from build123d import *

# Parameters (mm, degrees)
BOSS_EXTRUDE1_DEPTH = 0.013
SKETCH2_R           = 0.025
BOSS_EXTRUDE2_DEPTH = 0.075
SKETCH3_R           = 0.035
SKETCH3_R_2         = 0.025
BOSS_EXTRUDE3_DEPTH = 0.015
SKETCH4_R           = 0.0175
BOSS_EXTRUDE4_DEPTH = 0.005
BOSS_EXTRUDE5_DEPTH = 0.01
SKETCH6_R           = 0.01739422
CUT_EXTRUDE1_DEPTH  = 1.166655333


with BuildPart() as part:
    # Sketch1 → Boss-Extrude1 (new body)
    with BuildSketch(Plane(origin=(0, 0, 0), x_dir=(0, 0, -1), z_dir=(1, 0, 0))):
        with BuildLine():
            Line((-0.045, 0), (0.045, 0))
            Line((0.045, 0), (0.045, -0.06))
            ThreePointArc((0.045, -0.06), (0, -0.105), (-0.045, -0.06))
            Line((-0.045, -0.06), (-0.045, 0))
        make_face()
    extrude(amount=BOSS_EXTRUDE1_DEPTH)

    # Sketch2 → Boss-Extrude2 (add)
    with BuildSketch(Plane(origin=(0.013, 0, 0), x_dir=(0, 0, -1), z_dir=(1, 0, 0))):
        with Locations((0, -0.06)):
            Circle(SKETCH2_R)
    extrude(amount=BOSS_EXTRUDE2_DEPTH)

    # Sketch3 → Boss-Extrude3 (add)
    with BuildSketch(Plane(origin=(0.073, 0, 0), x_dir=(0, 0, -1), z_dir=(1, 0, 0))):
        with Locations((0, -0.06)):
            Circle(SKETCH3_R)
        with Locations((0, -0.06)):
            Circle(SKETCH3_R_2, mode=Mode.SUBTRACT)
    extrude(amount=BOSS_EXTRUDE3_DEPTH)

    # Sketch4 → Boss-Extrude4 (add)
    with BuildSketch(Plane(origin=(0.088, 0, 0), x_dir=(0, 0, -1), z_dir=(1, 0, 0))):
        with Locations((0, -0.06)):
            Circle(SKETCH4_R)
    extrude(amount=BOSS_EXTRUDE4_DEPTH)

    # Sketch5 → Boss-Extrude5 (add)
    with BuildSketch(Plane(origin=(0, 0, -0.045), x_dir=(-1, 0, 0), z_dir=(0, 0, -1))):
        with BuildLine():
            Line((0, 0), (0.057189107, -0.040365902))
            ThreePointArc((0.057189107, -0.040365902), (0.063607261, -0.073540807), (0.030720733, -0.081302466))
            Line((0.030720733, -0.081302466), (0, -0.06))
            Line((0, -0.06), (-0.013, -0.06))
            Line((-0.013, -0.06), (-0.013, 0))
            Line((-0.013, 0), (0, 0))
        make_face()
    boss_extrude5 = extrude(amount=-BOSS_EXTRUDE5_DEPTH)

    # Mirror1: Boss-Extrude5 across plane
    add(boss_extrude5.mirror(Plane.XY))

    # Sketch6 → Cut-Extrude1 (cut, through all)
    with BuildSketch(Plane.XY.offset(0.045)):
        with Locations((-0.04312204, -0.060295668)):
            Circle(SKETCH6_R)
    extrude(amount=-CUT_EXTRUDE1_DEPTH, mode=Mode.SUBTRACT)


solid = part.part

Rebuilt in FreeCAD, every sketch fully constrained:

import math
import FreeCAD as App
import Part
import Sketcher
Q = App.Units.Quantity

doc = App.newDocument("Part")
body = doc.addObject("PartDesign::Body", "Body")

sketch1 = doc.addObject("Sketcher::SketchObject", "Sketch")
body.addObject(sketch1)
sketch1.AttachmentSupport = (doc.YZ_Plane, [""])
sketch1.MapMode = "FlatFace"
sketch1.addGeometry([
    Part.LineSegment(App.Vector(0, -0.045, 0), App.Vector(0, 0.045, 0)),
    Part.LineSegment(App.Vector(0, 0.045, 0), App.Vector(-0.06, 0.045, 0)),
    Part.ArcOfCircle(Part.Circle(App.Vector(-0.06, 0, 0), App.Vector(0, 0, 1), 0.045), math.radians(90), math.radians(270)),
    Part.LineSegment(App.Vector(-0.06, -0.045, 0), App.Vector(0, -0.045, 0)),
], False)
sketch1.addConstraint([
    Sketcher.Constraint("Coincident", 0, 2, 1, 1),
    Sketcher.Constraint("Tangent", 1, 2, 2, 1),
    Sketcher.Constraint("Tangent", 2, 2, 3, 1),
    Sketcher.Constraint("Coincident", 3, 2, 0, 1),
    Sketcher.Constraint("Vertical", 0),
    Sketcher.Constraint("Horizontal", 1),
    Sketcher.Constraint("Horizontal", 3),
    Sketcher.Constraint("Symmetric", 0, 2, 3, 2, -1, 1),
    Sketcher.Constraint("Radius", 2, Q("0.045 mm")),
    Sketcher.Constraint("DistanceX", 1, 2, 1, 1, Q("0.06 mm")),
])
pad1 = doc.addObject("PartDesign::Pad", "Pad")
body.addObject(pad1)
pad1.Profile = sketch1
pad1.Length = 0.013

sketch2 = doc.addObject("Sketcher::SketchObject", "Sketch001")
body.addObject(sketch2)
sketch2.AttachmentSupport = (doc.YZ_Plane, [""])
sketch2.MapMode = "FlatFace"
sketch2.AttachmentOffset = App.Placement(App.Vector(0, 0, 0.013), App.Rotation())
sketch2.addGeometry(Part.Circle(App.Vector(-0.06, 0, 0), App.Vector(0, 0, 1), 0.025), False)
sketch2.addConstraint([
    Sketcher.Constraint("PointOnObject", 0, 3, -1),
    Sketcher.Constraint("Diameter", 0, Q("0.05 mm")),
    Sketcher.Constraint("DistanceX", 0, 3, -1, 1, Q("0.06 mm")),
])
pad2 = doc.addObject("PartDesign::Pad", "Pad001")
body.addObject(pad2)
pad2.Profile = sketch2
pad2.Length = 0.075

sketch3 = doc.addObject("Sketcher::SketchObject", "Sketch002")
body.addObject(sketch3)
sketch3.AttachmentSupport = (doc.YZ_Plane, [""])
sketch3.MapMode = "FlatFace"
sketch3.AttachmentOffset = App.Placement(App.Vector(0, 0, 0.073), App.Rotation())
sketch3.addGeometry([
    Part.Circle(App.Vector(-0.06, 0, 0), App.Vector(0, 0, 1), 0.035),
    Part.Circle(App.Vector(-0.06, 0, 0), App.Vector(0, 0, 1), 0.025),
], False)
sketch3.addConstraint([
    Sketcher.Constraint("Coincident", 1, 3, 0, 3),
    Sketcher.Constraint("PointOnObject", 0, 3, -1),
    Sketcher.Constraint("Diameter", 0, Q("0.07 mm")),
    Sketcher.Constraint("Diameter", 1, Q("0.05 mm")),
    Sketcher.Constraint("DistanceX", 0, 3, -1, 1, Q("0.06 mm")),
])
pad3 = doc.addObject("PartDesign::Pad", "Pad002")
body.addObject(pad3)
pad3.Profile = sketch3
pad3.Length = 0.015

sketch4 = doc.addObject("Sketcher::SketchObject", "Sketch003")
body.addObject(sketch4)
sketch4.AttachmentSupport = (doc.YZ_Plane, [""])
sketch4.MapMode = "FlatFace"
sketch4.AttachmentOffset = App.Placement(App.Vector(0, 0, 0.088), App.Rotation())
sketch4.addGeometry(Part.Circle(App.Vector(-0.06, 0, 0), App.Vector(0, 0, 1), 0.0175), False)
sketch4.addConstraint([
    Sketcher.Constraint("PointOnObject", 0, 3, -1),
    Sketcher.Constraint("Diameter", 0, Q("0.035 mm")),
    Sketcher.Constraint("DistanceX", 0, 3, -1, 1, Q("0.06 mm")),
])
pad4 = doc.addObject("PartDesign::Pad", "Pad003")
body.addObject(pad4)
pad4.Profile = sketch4
pad4.Length = 0.005

sketch5 = doc.addObject("Sketcher::SketchObject", "Sketch004")
body.addObject(sketch5)
sketch5.AttachmentSupport = (doc.XY_Plane, [""])
sketch5.MapMode = "FlatFace"
sketch5.AttachmentOffset = App.Placement(App.Vector(0, 0, -0.045), App.Rotation())
sketch5.addGeometry([
    Part.LineSegment(App.Vector(-0.057189, -0.040366, 0), App.Vector(0, 0, 0)),
    Part.LineSegment(App.Vector(0, 0, 0), App.Vector(0.013, 0, 0)),
    Part.LineSegment(App.Vector(0.013, 0, 0), App.Vector(0.013, -0.06, 0)),
    Part.LineSegment(App.Vector(0.013, -0.06, 0), App.Vector(0, -0.06, 0)),
    Part.LineSegment(App.Vector(0, -0.06, 0), App.Vector(-0.030721, -0.081302, 0)),
    Part.ArcOfCircle(Part.Circle(App.Vector(-0.043122, -0.060296, 0), App.Vector(0, 0, 1), 0.024394), math.radians(125.215667), math.radians(300.555365)),
], False)
sketch5.addConstraint([
    Sketcher.Constraint("Coincident", 0, 2, 1, 1),
    Sketcher.Constraint("Coincident", 1, 2, 2, 1),
    Sketcher.Constraint("Coincident", 2, 2, 3, 1),
    Sketcher.Constraint("Coincident", 3, 2, 4, 1),
    Sketcher.Constraint("Coincident", 4, 2, 5, 2),
    Sketcher.Constraint("Tangent", 5, 1, 0, 1),
    Sketcher.Constraint("Horizontal", 1),
    Sketcher.Constraint("Vertical", 2),
    Sketcher.Constraint("Horizontal", 3),
    Sketcher.Constraint("Coincident", 0, 2, -1, 1),
    Sketcher.Constraint("PointOnObject", 3, 2, -2),
    Sketcher.Constraint("DistanceY", 2, 2, 2, 1, Q("0.06 mm")),
    Sketcher.Constraint("Distance", 0, Q("0.07 mm")),
    Sketcher.Constraint("DistanceX", 1, 1, 1, 2, Q("0.013 mm")),
    Sketcher.Constraint("Radius", 5, Q("0.024394 mm")),
    Sketcher.Constraint("DistanceX", 5, 3, 4, 2, Q("0.012401 mm")),
    Sketcher.Constraint("DistanceX", 4, 2, -1, 1, Q("0.030721 mm")),
])
pad5 = doc.addObject("PartDesign::Pad", "Pad004")
body.addObject(pad5)
pad5.Profile = sketch5
pad5.Length = 0.01
doc.recompute()

mirrored = doc.addObject("PartDesign::Mirrored", "Mirrored")
body.addObject(mirrored)
mirrored.Originals = [pad5]
mirrored.MirrorPlane = (doc.XY_Plane, [""])
body.Tip = mirrored

sketch6 = doc.addObject("Sketcher::SketchObject", "Sketch005")
body.addObject(sketch6)
sketch6.AttachmentSupport = (doc.XY_Plane, [""])
sketch6.MapMode = "FlatFace"
sketch6.AttachmentOffset = App.Placement(App.Vector(0, 0, 0.045), App.Rotation())
sketch6.addGeometry(Part.Circle(App.Vector(-0.043122, -0.060296, 0), App.Vector(0, 0, 1), 0.017394), False)
sketch6.addConstraint([
    Sketcher.Constraint("Diameter", 0, Q("0.034788 mm")),
    Sketcher.Constraint("DistanceX", 0, 3, -1, 1, Q("0.043122 mm")),
    Sketcher.Constraint("DistanceY", 0, 3, -1, 1, Q("0.060296 mm")),
])
pocket1 = doc.addObject("PartDesign::Pocket", "Pocket")
body.addObject(pocket1)
pocket1.Profile = sketch6
pocket1.Type = "ThroughAll"

doc.recompute()
